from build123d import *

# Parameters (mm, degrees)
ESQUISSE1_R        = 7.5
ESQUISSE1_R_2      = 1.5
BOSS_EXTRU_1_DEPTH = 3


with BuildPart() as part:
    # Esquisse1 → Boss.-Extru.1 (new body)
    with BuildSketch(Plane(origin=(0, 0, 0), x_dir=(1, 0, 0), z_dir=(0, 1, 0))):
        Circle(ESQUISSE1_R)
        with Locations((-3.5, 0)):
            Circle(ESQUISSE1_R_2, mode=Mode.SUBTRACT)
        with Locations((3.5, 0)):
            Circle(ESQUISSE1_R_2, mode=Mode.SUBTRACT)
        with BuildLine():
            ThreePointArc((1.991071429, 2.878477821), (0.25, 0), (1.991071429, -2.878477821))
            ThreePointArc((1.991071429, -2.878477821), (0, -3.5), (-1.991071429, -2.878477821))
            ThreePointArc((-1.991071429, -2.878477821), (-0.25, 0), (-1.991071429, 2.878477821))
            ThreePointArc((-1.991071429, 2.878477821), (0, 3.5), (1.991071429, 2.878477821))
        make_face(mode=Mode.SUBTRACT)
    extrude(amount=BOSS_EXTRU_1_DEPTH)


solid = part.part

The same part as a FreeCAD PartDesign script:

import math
import FreeCAD as App
import Part
import Sketcher

V = App.Vector
Q = App.Units.Quantity

doc = App.newDocument("Part")
body = doc.addObject("PartDesign::Body", "Body")

sketch1 = doc.addObject("Sketcher::SketchObject", "Sketch")
body.addObject(sketch1)
sketch1.AttachmentSupport = (doc.XZ_Plane, [""])
sketch1.MapMode = "FlatFace"
sketch1.addGeometry(Part.Circle(V(0, 0, 0), V(0, 0, 1), 7.5), False)
sketch1.addGeometry(Part.Circle(V(-3.5, 0, 0), V(0, 0, 1), 1.5), False)
sketch1.addGeometry(Part.ArcOfCircle(Part.Circle(V(0, 0, 0), V(0, 0, 1), 3.5), math.radians(-125), math.radians(-55)), False)
sketch1.addGeometry(Part.ArcOfCircle(Part.Circle(V(3.5, 0, 0), V(0, 0, 1), 3.2), math.radians(118), math.radians(242)), False)
sketch1.addGeometry(Part.ArcOfCircle(Part.Circle(V(0, 0, 0), V(0, 0, 1), 3.5), math.radians(55), math.radians(125)), False)
sketch1.addGeometry(Part.ArcOfCircle(Part.Circle(V(-3.5, 0, 0), V(0, 0, 1), 3.2), math.radians(-62), math.radians(62)), False)
sketch1.addGeometry(Part.Circle(V(3.5, 0, 0), V(0, 0, 1), 1.5), False)
sketch1.addConstraint(Sketcher.Constraint("Coincident", 2, 2, 3, 2))
sketch1.addConstraint(Sketcher.Constraint("Coincident", 3, 1, 4, 1))
sketch1.addConstraint(Sketcher.Constraint("Coincident", 4, 2, 5, 2))
sketch1.addConstraint(Sketcher.Constraint("Coincident", 5, 1, 2, 1))
sketch1.addConstraint(Sketcher.Constraint("Coincident", 0, 3, -1, 1))
sketch1.addConstraint(Sketcher.Constraint("Coincident", 2, 3, -1, 1))
sketch1.addConstraint(Sketcher.Constraint("Coincident", 4, 3, -1, 1))
sketch1.addConstraint(Sketcher.Constraint("Coincident", 5, 3, 1, 3))
sketch1.addConstraint(Sketcher.Constraint("Coincident", 6, 3, 3, 3))
sketch1.addConstraint(Sketcher.Constraint("Equal", 2, 4))
sketch1.addConstraint(Sketcher.Constraint("Equal", 3, 5))
sketch1.addConstraint(Sketcher.Constraint("Equal", 1, 6))
sketch1.addConstraint(Sketcher.Constraint("Symmetric", 1, 3, 3, 3, -1, 1))
sketch1.addConstraint(Sketcher.Constraint("PointOnObject", 1, 3, -1))
sketch1.addConstraint(Sketcher.Constraint("Diameter", 0, Q("15 mm")))
sketch1.addConstraint(Sketcher.Constraint("Diameter", 1, Q("3 mm")))
sketch1.addConstraint(Sketcher.Constraint("Radius", 2, Q("3.5 mm")))
sketch1.addConstraint(Sketcher.Constraint("Radius", 3, Q("3.25 mm")))
sketch1.addConstraint(Sketcher.Constraint("DistanceX", 1, 3, 3, 3, Q("7 mm")))
pad1 = doc.addObject("PartDesign::Pad", "Pad")
body.addObject(pad1)
pad1.Profile = sketch1
pad1.Length = 3
pad1.Reversed = True

doc.recompute()
